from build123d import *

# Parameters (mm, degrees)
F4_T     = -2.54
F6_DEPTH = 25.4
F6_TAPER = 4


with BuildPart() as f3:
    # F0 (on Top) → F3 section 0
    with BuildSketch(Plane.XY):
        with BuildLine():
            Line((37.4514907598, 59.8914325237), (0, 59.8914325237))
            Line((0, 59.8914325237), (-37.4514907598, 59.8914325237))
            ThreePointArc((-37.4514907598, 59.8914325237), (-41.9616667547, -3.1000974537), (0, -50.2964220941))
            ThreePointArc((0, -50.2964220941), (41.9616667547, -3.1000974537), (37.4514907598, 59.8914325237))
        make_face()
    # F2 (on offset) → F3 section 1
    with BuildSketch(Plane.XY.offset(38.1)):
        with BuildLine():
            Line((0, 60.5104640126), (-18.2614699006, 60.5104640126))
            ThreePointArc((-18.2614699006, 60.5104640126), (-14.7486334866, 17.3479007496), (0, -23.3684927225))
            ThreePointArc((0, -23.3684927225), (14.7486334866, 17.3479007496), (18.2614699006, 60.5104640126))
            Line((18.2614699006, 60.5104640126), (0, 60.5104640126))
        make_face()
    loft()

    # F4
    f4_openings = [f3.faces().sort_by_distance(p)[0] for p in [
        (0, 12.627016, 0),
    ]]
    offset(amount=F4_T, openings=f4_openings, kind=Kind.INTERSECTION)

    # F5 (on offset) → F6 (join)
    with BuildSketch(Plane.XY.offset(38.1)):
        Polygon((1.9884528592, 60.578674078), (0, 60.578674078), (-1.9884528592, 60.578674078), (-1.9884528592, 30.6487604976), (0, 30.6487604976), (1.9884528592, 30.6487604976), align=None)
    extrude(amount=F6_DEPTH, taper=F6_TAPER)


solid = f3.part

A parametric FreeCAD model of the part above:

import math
import FreeCAD as App
import Part
import Sketcher

V = App.Vector
Q = App.Units.Quantity


def faces_at(feature, points):
    """Names of the faces that lie closest to the given points."""
    faces = feature.Shape.Faces
    near = lambda p: min(range(len(faces)), key=lambda i: faces[i].distToShape(Part.Vertex(*p))[0])
    return sorted({f"Face{near(p) + 1}" for p in points})

doc = App.newDocument("Part")
params = doc.addObject("Spreadsheet::Sheet", "Params")
for row, (alias, value) in enumerate([
    ("thickness_wall", "0.1 in"),
    ("pad1_length", "1 in"),
    ("pad1_taper", "-4 deg"),
], start=1):
    params.set(f"A{row}", alias)
    params.set(f"B{row}", "=" + value)
    params.setAlias(f"B{row}", alias)

body = doc.addObject("PartDesign::Body", "Body")

# Sketch on XY plane
sketch1 = body.newObject("Sketcher::SketchObject", "Sketch")
sketch1.AttachmentSupport = (doc.getObject("XY_Plane"), [""])
sketch1.MapMode = "FlatFace"
sketch1.addGeometry([
    Part.LineSegment(V(37, 60, 0), V(-37, 60, 0)),
    Part.ArcOfCircle(Part.Circle(V(35, 23, 0), V(0, 0, 1), 81), math.radians(153), math.radians(245)),
    Part.ArcOfCircle(Part.Circle(V(-35, 23, 0), V(0, 0, 1), 81), math.radians(-65), math.radians(27)),
], False)
sketch1.addConstraint([
    Sketcher.Constraint("Coincident", 0, 2, 1, 1),
    Sketcher.Constraint("Coincident", 1, 2, 2, 1),
    Sketcher.Constraint("Coincident", 2, 2, 0, 1),
    Sketcher.Constraint("Horizontal", 0),
    Sketcher.Constraint("Equal", 1, 2),
    Sketcher.Constraint("Symmetric", 1, 3, 2, 3, -2),
    Sketcher.Constraint("Radius", 1, Q("81.256061 mm")),
    Sketcher.Constraint("DistanceX", 2, 3, 1, 3, Q("2.7537001 in")),
    Sketcher.Constraint("DistanceX", 0, 2, 0, 1, Q("74.902982 mm")),
    Sketcher.Constraint("DistanceY", -1, 1, 1, 3, Q("23.048703 mm")),
])

# Sketch on XY plane
sketch2 = body.newObject("Sketcher::SketchObject", "Sketch001")
sketch2.AttachmentSupport = (doc.getObject("XY_Plane"), [""])
sketch2.MapMode = "FlatFace"
sketch2.AttachmentOffset = App.Placement(V(0, 0, 1.5 * 25.4), App.Rotation())
sketch2.addGeometry([
    Part.ArcOfCircle(Part.Circle(V(145, 52, 0), V(0, 0, 1), 163), math.radians(177), math.radians(208)),
    Part.ArcOfCircle(Part.Circle(V(-145, 52, 0), V(0, 0, 1), 163), math.radians(-28), math.radians(3)),
    Part.LineSegment(V(18, 61, 0), V(-18, 61, 0)),
], False)
sketch2.addConstraint([
    Sketcher.Constraint("Coincident", 0, 2, 1, 1),
    Sketcher.Constraint("Coincident", 1, 2, 2, 1),
    Sketcher.Constraint("Coincident", 2, 2, 0, 1),
    Sketcher.Constraint("Horizontal", 2),
    Sketcher.Constraint("Equal", 0, 1),
    Sketcher.Constraint("Symmetric", 0, 3, 1, 3, -2),
    Sketcher.Constraint("Radius", 0, Q("163.087897 mm")),
    Sketcher.Constraint("DistanceX", 2, 2, 2, 1, Q("36.52294 mm")),
    Sketcher.Constraint("DistanceX", -1, 1, 0, 3, Q("144.606383 mm")),
    Sketcher.Constraint("DistanceY", -1, 1, 0, 3, Q("52.041428 mm")),
])

additiveloft = body.newObject("PartDesign::AdditiveLoft", "AdditiveLoft")
additiveloft.Profile = sketch1
additiveloft.Sections = [sketch2]
doc.recompute()

thickness = body.newObject("PartDesign::Thickness", "Thickness")
thickness.Base = (additiveloft, faces_at(additiveloft, [(-3.532, 16.105, 0)]))
thickness.setExpression("Value", "Params.thickness_wall")
thickness.Reversed = True
thickness.Join = "Intersection"

# Sketch on XY plane
sketch3 = body.newObject("Sketcher::SketchObject", "Sketch002")
sketch3.AttachmentSupport = (doc.getObject("XY_Plane"), [""])
sketch3.MapMode = "FlatFace"
sketch3.AttachmentOffset = App.Placement(V(0, 0, 1.5 * 25.4), App.Rotation())
sketch3.addGeometry([
    Part.LineSegment(V(2, 60.6, 0), V(-2, 60.6, 0)),
    Part.LineSegment(V(-2, 60.6, 0), V(-2, 30.6, 0)),
    Part.LineSegment(V(-2, 30.6, 0), V(2, 30.6, 0)),
    Part.LineSegment(V(2, 30.6, 0), V(2, 60.6, 0)),
], False)
sketch3.addConstraint([
    Sketcher.Constraint("Coincident", 0, 2, 1, 1),
    Sketcher.Constraint("Coincident", 1, 2, 2, 1),
    Sketcher.Constraint("Coincident", 2, 2, 3, 1),
    Sketcher.Constraint("Coincident", 3, 2, 0, 1),
    Sketcher.Constraint("Horizontal", 0),
    Sketcher.Constraint("Vertical", 1),
    Sketcher.Constraint("Horizontal", 2),
    Sketcher.Constraint("Vertical", 3),
    Sketcher.Constraint("DistanceX", 0, 2, 0, 1, Q("3.976906 mm")),
    Sketcher.Constraint("DistanceY", 1, 2, 1, 1, Q("29.929914 mm")),
    Sketcher.Constraint("DistanceY", -1, 1, 1, 2, Q("30.64876 mm")),
    Sketcher.Constraint("DistanceX", 0, 2, -1, 1, Q("1.988453 mm")),
])
pad1 = body.newObject("PartDesign::Pad", "Pad")
pad1.Profile = sketch3
pad1.setExpression("Length", "Params.pad1_length")
pad1.setExpression("TaperAngle", "Params.pad1_taper")

doc.recompute()
